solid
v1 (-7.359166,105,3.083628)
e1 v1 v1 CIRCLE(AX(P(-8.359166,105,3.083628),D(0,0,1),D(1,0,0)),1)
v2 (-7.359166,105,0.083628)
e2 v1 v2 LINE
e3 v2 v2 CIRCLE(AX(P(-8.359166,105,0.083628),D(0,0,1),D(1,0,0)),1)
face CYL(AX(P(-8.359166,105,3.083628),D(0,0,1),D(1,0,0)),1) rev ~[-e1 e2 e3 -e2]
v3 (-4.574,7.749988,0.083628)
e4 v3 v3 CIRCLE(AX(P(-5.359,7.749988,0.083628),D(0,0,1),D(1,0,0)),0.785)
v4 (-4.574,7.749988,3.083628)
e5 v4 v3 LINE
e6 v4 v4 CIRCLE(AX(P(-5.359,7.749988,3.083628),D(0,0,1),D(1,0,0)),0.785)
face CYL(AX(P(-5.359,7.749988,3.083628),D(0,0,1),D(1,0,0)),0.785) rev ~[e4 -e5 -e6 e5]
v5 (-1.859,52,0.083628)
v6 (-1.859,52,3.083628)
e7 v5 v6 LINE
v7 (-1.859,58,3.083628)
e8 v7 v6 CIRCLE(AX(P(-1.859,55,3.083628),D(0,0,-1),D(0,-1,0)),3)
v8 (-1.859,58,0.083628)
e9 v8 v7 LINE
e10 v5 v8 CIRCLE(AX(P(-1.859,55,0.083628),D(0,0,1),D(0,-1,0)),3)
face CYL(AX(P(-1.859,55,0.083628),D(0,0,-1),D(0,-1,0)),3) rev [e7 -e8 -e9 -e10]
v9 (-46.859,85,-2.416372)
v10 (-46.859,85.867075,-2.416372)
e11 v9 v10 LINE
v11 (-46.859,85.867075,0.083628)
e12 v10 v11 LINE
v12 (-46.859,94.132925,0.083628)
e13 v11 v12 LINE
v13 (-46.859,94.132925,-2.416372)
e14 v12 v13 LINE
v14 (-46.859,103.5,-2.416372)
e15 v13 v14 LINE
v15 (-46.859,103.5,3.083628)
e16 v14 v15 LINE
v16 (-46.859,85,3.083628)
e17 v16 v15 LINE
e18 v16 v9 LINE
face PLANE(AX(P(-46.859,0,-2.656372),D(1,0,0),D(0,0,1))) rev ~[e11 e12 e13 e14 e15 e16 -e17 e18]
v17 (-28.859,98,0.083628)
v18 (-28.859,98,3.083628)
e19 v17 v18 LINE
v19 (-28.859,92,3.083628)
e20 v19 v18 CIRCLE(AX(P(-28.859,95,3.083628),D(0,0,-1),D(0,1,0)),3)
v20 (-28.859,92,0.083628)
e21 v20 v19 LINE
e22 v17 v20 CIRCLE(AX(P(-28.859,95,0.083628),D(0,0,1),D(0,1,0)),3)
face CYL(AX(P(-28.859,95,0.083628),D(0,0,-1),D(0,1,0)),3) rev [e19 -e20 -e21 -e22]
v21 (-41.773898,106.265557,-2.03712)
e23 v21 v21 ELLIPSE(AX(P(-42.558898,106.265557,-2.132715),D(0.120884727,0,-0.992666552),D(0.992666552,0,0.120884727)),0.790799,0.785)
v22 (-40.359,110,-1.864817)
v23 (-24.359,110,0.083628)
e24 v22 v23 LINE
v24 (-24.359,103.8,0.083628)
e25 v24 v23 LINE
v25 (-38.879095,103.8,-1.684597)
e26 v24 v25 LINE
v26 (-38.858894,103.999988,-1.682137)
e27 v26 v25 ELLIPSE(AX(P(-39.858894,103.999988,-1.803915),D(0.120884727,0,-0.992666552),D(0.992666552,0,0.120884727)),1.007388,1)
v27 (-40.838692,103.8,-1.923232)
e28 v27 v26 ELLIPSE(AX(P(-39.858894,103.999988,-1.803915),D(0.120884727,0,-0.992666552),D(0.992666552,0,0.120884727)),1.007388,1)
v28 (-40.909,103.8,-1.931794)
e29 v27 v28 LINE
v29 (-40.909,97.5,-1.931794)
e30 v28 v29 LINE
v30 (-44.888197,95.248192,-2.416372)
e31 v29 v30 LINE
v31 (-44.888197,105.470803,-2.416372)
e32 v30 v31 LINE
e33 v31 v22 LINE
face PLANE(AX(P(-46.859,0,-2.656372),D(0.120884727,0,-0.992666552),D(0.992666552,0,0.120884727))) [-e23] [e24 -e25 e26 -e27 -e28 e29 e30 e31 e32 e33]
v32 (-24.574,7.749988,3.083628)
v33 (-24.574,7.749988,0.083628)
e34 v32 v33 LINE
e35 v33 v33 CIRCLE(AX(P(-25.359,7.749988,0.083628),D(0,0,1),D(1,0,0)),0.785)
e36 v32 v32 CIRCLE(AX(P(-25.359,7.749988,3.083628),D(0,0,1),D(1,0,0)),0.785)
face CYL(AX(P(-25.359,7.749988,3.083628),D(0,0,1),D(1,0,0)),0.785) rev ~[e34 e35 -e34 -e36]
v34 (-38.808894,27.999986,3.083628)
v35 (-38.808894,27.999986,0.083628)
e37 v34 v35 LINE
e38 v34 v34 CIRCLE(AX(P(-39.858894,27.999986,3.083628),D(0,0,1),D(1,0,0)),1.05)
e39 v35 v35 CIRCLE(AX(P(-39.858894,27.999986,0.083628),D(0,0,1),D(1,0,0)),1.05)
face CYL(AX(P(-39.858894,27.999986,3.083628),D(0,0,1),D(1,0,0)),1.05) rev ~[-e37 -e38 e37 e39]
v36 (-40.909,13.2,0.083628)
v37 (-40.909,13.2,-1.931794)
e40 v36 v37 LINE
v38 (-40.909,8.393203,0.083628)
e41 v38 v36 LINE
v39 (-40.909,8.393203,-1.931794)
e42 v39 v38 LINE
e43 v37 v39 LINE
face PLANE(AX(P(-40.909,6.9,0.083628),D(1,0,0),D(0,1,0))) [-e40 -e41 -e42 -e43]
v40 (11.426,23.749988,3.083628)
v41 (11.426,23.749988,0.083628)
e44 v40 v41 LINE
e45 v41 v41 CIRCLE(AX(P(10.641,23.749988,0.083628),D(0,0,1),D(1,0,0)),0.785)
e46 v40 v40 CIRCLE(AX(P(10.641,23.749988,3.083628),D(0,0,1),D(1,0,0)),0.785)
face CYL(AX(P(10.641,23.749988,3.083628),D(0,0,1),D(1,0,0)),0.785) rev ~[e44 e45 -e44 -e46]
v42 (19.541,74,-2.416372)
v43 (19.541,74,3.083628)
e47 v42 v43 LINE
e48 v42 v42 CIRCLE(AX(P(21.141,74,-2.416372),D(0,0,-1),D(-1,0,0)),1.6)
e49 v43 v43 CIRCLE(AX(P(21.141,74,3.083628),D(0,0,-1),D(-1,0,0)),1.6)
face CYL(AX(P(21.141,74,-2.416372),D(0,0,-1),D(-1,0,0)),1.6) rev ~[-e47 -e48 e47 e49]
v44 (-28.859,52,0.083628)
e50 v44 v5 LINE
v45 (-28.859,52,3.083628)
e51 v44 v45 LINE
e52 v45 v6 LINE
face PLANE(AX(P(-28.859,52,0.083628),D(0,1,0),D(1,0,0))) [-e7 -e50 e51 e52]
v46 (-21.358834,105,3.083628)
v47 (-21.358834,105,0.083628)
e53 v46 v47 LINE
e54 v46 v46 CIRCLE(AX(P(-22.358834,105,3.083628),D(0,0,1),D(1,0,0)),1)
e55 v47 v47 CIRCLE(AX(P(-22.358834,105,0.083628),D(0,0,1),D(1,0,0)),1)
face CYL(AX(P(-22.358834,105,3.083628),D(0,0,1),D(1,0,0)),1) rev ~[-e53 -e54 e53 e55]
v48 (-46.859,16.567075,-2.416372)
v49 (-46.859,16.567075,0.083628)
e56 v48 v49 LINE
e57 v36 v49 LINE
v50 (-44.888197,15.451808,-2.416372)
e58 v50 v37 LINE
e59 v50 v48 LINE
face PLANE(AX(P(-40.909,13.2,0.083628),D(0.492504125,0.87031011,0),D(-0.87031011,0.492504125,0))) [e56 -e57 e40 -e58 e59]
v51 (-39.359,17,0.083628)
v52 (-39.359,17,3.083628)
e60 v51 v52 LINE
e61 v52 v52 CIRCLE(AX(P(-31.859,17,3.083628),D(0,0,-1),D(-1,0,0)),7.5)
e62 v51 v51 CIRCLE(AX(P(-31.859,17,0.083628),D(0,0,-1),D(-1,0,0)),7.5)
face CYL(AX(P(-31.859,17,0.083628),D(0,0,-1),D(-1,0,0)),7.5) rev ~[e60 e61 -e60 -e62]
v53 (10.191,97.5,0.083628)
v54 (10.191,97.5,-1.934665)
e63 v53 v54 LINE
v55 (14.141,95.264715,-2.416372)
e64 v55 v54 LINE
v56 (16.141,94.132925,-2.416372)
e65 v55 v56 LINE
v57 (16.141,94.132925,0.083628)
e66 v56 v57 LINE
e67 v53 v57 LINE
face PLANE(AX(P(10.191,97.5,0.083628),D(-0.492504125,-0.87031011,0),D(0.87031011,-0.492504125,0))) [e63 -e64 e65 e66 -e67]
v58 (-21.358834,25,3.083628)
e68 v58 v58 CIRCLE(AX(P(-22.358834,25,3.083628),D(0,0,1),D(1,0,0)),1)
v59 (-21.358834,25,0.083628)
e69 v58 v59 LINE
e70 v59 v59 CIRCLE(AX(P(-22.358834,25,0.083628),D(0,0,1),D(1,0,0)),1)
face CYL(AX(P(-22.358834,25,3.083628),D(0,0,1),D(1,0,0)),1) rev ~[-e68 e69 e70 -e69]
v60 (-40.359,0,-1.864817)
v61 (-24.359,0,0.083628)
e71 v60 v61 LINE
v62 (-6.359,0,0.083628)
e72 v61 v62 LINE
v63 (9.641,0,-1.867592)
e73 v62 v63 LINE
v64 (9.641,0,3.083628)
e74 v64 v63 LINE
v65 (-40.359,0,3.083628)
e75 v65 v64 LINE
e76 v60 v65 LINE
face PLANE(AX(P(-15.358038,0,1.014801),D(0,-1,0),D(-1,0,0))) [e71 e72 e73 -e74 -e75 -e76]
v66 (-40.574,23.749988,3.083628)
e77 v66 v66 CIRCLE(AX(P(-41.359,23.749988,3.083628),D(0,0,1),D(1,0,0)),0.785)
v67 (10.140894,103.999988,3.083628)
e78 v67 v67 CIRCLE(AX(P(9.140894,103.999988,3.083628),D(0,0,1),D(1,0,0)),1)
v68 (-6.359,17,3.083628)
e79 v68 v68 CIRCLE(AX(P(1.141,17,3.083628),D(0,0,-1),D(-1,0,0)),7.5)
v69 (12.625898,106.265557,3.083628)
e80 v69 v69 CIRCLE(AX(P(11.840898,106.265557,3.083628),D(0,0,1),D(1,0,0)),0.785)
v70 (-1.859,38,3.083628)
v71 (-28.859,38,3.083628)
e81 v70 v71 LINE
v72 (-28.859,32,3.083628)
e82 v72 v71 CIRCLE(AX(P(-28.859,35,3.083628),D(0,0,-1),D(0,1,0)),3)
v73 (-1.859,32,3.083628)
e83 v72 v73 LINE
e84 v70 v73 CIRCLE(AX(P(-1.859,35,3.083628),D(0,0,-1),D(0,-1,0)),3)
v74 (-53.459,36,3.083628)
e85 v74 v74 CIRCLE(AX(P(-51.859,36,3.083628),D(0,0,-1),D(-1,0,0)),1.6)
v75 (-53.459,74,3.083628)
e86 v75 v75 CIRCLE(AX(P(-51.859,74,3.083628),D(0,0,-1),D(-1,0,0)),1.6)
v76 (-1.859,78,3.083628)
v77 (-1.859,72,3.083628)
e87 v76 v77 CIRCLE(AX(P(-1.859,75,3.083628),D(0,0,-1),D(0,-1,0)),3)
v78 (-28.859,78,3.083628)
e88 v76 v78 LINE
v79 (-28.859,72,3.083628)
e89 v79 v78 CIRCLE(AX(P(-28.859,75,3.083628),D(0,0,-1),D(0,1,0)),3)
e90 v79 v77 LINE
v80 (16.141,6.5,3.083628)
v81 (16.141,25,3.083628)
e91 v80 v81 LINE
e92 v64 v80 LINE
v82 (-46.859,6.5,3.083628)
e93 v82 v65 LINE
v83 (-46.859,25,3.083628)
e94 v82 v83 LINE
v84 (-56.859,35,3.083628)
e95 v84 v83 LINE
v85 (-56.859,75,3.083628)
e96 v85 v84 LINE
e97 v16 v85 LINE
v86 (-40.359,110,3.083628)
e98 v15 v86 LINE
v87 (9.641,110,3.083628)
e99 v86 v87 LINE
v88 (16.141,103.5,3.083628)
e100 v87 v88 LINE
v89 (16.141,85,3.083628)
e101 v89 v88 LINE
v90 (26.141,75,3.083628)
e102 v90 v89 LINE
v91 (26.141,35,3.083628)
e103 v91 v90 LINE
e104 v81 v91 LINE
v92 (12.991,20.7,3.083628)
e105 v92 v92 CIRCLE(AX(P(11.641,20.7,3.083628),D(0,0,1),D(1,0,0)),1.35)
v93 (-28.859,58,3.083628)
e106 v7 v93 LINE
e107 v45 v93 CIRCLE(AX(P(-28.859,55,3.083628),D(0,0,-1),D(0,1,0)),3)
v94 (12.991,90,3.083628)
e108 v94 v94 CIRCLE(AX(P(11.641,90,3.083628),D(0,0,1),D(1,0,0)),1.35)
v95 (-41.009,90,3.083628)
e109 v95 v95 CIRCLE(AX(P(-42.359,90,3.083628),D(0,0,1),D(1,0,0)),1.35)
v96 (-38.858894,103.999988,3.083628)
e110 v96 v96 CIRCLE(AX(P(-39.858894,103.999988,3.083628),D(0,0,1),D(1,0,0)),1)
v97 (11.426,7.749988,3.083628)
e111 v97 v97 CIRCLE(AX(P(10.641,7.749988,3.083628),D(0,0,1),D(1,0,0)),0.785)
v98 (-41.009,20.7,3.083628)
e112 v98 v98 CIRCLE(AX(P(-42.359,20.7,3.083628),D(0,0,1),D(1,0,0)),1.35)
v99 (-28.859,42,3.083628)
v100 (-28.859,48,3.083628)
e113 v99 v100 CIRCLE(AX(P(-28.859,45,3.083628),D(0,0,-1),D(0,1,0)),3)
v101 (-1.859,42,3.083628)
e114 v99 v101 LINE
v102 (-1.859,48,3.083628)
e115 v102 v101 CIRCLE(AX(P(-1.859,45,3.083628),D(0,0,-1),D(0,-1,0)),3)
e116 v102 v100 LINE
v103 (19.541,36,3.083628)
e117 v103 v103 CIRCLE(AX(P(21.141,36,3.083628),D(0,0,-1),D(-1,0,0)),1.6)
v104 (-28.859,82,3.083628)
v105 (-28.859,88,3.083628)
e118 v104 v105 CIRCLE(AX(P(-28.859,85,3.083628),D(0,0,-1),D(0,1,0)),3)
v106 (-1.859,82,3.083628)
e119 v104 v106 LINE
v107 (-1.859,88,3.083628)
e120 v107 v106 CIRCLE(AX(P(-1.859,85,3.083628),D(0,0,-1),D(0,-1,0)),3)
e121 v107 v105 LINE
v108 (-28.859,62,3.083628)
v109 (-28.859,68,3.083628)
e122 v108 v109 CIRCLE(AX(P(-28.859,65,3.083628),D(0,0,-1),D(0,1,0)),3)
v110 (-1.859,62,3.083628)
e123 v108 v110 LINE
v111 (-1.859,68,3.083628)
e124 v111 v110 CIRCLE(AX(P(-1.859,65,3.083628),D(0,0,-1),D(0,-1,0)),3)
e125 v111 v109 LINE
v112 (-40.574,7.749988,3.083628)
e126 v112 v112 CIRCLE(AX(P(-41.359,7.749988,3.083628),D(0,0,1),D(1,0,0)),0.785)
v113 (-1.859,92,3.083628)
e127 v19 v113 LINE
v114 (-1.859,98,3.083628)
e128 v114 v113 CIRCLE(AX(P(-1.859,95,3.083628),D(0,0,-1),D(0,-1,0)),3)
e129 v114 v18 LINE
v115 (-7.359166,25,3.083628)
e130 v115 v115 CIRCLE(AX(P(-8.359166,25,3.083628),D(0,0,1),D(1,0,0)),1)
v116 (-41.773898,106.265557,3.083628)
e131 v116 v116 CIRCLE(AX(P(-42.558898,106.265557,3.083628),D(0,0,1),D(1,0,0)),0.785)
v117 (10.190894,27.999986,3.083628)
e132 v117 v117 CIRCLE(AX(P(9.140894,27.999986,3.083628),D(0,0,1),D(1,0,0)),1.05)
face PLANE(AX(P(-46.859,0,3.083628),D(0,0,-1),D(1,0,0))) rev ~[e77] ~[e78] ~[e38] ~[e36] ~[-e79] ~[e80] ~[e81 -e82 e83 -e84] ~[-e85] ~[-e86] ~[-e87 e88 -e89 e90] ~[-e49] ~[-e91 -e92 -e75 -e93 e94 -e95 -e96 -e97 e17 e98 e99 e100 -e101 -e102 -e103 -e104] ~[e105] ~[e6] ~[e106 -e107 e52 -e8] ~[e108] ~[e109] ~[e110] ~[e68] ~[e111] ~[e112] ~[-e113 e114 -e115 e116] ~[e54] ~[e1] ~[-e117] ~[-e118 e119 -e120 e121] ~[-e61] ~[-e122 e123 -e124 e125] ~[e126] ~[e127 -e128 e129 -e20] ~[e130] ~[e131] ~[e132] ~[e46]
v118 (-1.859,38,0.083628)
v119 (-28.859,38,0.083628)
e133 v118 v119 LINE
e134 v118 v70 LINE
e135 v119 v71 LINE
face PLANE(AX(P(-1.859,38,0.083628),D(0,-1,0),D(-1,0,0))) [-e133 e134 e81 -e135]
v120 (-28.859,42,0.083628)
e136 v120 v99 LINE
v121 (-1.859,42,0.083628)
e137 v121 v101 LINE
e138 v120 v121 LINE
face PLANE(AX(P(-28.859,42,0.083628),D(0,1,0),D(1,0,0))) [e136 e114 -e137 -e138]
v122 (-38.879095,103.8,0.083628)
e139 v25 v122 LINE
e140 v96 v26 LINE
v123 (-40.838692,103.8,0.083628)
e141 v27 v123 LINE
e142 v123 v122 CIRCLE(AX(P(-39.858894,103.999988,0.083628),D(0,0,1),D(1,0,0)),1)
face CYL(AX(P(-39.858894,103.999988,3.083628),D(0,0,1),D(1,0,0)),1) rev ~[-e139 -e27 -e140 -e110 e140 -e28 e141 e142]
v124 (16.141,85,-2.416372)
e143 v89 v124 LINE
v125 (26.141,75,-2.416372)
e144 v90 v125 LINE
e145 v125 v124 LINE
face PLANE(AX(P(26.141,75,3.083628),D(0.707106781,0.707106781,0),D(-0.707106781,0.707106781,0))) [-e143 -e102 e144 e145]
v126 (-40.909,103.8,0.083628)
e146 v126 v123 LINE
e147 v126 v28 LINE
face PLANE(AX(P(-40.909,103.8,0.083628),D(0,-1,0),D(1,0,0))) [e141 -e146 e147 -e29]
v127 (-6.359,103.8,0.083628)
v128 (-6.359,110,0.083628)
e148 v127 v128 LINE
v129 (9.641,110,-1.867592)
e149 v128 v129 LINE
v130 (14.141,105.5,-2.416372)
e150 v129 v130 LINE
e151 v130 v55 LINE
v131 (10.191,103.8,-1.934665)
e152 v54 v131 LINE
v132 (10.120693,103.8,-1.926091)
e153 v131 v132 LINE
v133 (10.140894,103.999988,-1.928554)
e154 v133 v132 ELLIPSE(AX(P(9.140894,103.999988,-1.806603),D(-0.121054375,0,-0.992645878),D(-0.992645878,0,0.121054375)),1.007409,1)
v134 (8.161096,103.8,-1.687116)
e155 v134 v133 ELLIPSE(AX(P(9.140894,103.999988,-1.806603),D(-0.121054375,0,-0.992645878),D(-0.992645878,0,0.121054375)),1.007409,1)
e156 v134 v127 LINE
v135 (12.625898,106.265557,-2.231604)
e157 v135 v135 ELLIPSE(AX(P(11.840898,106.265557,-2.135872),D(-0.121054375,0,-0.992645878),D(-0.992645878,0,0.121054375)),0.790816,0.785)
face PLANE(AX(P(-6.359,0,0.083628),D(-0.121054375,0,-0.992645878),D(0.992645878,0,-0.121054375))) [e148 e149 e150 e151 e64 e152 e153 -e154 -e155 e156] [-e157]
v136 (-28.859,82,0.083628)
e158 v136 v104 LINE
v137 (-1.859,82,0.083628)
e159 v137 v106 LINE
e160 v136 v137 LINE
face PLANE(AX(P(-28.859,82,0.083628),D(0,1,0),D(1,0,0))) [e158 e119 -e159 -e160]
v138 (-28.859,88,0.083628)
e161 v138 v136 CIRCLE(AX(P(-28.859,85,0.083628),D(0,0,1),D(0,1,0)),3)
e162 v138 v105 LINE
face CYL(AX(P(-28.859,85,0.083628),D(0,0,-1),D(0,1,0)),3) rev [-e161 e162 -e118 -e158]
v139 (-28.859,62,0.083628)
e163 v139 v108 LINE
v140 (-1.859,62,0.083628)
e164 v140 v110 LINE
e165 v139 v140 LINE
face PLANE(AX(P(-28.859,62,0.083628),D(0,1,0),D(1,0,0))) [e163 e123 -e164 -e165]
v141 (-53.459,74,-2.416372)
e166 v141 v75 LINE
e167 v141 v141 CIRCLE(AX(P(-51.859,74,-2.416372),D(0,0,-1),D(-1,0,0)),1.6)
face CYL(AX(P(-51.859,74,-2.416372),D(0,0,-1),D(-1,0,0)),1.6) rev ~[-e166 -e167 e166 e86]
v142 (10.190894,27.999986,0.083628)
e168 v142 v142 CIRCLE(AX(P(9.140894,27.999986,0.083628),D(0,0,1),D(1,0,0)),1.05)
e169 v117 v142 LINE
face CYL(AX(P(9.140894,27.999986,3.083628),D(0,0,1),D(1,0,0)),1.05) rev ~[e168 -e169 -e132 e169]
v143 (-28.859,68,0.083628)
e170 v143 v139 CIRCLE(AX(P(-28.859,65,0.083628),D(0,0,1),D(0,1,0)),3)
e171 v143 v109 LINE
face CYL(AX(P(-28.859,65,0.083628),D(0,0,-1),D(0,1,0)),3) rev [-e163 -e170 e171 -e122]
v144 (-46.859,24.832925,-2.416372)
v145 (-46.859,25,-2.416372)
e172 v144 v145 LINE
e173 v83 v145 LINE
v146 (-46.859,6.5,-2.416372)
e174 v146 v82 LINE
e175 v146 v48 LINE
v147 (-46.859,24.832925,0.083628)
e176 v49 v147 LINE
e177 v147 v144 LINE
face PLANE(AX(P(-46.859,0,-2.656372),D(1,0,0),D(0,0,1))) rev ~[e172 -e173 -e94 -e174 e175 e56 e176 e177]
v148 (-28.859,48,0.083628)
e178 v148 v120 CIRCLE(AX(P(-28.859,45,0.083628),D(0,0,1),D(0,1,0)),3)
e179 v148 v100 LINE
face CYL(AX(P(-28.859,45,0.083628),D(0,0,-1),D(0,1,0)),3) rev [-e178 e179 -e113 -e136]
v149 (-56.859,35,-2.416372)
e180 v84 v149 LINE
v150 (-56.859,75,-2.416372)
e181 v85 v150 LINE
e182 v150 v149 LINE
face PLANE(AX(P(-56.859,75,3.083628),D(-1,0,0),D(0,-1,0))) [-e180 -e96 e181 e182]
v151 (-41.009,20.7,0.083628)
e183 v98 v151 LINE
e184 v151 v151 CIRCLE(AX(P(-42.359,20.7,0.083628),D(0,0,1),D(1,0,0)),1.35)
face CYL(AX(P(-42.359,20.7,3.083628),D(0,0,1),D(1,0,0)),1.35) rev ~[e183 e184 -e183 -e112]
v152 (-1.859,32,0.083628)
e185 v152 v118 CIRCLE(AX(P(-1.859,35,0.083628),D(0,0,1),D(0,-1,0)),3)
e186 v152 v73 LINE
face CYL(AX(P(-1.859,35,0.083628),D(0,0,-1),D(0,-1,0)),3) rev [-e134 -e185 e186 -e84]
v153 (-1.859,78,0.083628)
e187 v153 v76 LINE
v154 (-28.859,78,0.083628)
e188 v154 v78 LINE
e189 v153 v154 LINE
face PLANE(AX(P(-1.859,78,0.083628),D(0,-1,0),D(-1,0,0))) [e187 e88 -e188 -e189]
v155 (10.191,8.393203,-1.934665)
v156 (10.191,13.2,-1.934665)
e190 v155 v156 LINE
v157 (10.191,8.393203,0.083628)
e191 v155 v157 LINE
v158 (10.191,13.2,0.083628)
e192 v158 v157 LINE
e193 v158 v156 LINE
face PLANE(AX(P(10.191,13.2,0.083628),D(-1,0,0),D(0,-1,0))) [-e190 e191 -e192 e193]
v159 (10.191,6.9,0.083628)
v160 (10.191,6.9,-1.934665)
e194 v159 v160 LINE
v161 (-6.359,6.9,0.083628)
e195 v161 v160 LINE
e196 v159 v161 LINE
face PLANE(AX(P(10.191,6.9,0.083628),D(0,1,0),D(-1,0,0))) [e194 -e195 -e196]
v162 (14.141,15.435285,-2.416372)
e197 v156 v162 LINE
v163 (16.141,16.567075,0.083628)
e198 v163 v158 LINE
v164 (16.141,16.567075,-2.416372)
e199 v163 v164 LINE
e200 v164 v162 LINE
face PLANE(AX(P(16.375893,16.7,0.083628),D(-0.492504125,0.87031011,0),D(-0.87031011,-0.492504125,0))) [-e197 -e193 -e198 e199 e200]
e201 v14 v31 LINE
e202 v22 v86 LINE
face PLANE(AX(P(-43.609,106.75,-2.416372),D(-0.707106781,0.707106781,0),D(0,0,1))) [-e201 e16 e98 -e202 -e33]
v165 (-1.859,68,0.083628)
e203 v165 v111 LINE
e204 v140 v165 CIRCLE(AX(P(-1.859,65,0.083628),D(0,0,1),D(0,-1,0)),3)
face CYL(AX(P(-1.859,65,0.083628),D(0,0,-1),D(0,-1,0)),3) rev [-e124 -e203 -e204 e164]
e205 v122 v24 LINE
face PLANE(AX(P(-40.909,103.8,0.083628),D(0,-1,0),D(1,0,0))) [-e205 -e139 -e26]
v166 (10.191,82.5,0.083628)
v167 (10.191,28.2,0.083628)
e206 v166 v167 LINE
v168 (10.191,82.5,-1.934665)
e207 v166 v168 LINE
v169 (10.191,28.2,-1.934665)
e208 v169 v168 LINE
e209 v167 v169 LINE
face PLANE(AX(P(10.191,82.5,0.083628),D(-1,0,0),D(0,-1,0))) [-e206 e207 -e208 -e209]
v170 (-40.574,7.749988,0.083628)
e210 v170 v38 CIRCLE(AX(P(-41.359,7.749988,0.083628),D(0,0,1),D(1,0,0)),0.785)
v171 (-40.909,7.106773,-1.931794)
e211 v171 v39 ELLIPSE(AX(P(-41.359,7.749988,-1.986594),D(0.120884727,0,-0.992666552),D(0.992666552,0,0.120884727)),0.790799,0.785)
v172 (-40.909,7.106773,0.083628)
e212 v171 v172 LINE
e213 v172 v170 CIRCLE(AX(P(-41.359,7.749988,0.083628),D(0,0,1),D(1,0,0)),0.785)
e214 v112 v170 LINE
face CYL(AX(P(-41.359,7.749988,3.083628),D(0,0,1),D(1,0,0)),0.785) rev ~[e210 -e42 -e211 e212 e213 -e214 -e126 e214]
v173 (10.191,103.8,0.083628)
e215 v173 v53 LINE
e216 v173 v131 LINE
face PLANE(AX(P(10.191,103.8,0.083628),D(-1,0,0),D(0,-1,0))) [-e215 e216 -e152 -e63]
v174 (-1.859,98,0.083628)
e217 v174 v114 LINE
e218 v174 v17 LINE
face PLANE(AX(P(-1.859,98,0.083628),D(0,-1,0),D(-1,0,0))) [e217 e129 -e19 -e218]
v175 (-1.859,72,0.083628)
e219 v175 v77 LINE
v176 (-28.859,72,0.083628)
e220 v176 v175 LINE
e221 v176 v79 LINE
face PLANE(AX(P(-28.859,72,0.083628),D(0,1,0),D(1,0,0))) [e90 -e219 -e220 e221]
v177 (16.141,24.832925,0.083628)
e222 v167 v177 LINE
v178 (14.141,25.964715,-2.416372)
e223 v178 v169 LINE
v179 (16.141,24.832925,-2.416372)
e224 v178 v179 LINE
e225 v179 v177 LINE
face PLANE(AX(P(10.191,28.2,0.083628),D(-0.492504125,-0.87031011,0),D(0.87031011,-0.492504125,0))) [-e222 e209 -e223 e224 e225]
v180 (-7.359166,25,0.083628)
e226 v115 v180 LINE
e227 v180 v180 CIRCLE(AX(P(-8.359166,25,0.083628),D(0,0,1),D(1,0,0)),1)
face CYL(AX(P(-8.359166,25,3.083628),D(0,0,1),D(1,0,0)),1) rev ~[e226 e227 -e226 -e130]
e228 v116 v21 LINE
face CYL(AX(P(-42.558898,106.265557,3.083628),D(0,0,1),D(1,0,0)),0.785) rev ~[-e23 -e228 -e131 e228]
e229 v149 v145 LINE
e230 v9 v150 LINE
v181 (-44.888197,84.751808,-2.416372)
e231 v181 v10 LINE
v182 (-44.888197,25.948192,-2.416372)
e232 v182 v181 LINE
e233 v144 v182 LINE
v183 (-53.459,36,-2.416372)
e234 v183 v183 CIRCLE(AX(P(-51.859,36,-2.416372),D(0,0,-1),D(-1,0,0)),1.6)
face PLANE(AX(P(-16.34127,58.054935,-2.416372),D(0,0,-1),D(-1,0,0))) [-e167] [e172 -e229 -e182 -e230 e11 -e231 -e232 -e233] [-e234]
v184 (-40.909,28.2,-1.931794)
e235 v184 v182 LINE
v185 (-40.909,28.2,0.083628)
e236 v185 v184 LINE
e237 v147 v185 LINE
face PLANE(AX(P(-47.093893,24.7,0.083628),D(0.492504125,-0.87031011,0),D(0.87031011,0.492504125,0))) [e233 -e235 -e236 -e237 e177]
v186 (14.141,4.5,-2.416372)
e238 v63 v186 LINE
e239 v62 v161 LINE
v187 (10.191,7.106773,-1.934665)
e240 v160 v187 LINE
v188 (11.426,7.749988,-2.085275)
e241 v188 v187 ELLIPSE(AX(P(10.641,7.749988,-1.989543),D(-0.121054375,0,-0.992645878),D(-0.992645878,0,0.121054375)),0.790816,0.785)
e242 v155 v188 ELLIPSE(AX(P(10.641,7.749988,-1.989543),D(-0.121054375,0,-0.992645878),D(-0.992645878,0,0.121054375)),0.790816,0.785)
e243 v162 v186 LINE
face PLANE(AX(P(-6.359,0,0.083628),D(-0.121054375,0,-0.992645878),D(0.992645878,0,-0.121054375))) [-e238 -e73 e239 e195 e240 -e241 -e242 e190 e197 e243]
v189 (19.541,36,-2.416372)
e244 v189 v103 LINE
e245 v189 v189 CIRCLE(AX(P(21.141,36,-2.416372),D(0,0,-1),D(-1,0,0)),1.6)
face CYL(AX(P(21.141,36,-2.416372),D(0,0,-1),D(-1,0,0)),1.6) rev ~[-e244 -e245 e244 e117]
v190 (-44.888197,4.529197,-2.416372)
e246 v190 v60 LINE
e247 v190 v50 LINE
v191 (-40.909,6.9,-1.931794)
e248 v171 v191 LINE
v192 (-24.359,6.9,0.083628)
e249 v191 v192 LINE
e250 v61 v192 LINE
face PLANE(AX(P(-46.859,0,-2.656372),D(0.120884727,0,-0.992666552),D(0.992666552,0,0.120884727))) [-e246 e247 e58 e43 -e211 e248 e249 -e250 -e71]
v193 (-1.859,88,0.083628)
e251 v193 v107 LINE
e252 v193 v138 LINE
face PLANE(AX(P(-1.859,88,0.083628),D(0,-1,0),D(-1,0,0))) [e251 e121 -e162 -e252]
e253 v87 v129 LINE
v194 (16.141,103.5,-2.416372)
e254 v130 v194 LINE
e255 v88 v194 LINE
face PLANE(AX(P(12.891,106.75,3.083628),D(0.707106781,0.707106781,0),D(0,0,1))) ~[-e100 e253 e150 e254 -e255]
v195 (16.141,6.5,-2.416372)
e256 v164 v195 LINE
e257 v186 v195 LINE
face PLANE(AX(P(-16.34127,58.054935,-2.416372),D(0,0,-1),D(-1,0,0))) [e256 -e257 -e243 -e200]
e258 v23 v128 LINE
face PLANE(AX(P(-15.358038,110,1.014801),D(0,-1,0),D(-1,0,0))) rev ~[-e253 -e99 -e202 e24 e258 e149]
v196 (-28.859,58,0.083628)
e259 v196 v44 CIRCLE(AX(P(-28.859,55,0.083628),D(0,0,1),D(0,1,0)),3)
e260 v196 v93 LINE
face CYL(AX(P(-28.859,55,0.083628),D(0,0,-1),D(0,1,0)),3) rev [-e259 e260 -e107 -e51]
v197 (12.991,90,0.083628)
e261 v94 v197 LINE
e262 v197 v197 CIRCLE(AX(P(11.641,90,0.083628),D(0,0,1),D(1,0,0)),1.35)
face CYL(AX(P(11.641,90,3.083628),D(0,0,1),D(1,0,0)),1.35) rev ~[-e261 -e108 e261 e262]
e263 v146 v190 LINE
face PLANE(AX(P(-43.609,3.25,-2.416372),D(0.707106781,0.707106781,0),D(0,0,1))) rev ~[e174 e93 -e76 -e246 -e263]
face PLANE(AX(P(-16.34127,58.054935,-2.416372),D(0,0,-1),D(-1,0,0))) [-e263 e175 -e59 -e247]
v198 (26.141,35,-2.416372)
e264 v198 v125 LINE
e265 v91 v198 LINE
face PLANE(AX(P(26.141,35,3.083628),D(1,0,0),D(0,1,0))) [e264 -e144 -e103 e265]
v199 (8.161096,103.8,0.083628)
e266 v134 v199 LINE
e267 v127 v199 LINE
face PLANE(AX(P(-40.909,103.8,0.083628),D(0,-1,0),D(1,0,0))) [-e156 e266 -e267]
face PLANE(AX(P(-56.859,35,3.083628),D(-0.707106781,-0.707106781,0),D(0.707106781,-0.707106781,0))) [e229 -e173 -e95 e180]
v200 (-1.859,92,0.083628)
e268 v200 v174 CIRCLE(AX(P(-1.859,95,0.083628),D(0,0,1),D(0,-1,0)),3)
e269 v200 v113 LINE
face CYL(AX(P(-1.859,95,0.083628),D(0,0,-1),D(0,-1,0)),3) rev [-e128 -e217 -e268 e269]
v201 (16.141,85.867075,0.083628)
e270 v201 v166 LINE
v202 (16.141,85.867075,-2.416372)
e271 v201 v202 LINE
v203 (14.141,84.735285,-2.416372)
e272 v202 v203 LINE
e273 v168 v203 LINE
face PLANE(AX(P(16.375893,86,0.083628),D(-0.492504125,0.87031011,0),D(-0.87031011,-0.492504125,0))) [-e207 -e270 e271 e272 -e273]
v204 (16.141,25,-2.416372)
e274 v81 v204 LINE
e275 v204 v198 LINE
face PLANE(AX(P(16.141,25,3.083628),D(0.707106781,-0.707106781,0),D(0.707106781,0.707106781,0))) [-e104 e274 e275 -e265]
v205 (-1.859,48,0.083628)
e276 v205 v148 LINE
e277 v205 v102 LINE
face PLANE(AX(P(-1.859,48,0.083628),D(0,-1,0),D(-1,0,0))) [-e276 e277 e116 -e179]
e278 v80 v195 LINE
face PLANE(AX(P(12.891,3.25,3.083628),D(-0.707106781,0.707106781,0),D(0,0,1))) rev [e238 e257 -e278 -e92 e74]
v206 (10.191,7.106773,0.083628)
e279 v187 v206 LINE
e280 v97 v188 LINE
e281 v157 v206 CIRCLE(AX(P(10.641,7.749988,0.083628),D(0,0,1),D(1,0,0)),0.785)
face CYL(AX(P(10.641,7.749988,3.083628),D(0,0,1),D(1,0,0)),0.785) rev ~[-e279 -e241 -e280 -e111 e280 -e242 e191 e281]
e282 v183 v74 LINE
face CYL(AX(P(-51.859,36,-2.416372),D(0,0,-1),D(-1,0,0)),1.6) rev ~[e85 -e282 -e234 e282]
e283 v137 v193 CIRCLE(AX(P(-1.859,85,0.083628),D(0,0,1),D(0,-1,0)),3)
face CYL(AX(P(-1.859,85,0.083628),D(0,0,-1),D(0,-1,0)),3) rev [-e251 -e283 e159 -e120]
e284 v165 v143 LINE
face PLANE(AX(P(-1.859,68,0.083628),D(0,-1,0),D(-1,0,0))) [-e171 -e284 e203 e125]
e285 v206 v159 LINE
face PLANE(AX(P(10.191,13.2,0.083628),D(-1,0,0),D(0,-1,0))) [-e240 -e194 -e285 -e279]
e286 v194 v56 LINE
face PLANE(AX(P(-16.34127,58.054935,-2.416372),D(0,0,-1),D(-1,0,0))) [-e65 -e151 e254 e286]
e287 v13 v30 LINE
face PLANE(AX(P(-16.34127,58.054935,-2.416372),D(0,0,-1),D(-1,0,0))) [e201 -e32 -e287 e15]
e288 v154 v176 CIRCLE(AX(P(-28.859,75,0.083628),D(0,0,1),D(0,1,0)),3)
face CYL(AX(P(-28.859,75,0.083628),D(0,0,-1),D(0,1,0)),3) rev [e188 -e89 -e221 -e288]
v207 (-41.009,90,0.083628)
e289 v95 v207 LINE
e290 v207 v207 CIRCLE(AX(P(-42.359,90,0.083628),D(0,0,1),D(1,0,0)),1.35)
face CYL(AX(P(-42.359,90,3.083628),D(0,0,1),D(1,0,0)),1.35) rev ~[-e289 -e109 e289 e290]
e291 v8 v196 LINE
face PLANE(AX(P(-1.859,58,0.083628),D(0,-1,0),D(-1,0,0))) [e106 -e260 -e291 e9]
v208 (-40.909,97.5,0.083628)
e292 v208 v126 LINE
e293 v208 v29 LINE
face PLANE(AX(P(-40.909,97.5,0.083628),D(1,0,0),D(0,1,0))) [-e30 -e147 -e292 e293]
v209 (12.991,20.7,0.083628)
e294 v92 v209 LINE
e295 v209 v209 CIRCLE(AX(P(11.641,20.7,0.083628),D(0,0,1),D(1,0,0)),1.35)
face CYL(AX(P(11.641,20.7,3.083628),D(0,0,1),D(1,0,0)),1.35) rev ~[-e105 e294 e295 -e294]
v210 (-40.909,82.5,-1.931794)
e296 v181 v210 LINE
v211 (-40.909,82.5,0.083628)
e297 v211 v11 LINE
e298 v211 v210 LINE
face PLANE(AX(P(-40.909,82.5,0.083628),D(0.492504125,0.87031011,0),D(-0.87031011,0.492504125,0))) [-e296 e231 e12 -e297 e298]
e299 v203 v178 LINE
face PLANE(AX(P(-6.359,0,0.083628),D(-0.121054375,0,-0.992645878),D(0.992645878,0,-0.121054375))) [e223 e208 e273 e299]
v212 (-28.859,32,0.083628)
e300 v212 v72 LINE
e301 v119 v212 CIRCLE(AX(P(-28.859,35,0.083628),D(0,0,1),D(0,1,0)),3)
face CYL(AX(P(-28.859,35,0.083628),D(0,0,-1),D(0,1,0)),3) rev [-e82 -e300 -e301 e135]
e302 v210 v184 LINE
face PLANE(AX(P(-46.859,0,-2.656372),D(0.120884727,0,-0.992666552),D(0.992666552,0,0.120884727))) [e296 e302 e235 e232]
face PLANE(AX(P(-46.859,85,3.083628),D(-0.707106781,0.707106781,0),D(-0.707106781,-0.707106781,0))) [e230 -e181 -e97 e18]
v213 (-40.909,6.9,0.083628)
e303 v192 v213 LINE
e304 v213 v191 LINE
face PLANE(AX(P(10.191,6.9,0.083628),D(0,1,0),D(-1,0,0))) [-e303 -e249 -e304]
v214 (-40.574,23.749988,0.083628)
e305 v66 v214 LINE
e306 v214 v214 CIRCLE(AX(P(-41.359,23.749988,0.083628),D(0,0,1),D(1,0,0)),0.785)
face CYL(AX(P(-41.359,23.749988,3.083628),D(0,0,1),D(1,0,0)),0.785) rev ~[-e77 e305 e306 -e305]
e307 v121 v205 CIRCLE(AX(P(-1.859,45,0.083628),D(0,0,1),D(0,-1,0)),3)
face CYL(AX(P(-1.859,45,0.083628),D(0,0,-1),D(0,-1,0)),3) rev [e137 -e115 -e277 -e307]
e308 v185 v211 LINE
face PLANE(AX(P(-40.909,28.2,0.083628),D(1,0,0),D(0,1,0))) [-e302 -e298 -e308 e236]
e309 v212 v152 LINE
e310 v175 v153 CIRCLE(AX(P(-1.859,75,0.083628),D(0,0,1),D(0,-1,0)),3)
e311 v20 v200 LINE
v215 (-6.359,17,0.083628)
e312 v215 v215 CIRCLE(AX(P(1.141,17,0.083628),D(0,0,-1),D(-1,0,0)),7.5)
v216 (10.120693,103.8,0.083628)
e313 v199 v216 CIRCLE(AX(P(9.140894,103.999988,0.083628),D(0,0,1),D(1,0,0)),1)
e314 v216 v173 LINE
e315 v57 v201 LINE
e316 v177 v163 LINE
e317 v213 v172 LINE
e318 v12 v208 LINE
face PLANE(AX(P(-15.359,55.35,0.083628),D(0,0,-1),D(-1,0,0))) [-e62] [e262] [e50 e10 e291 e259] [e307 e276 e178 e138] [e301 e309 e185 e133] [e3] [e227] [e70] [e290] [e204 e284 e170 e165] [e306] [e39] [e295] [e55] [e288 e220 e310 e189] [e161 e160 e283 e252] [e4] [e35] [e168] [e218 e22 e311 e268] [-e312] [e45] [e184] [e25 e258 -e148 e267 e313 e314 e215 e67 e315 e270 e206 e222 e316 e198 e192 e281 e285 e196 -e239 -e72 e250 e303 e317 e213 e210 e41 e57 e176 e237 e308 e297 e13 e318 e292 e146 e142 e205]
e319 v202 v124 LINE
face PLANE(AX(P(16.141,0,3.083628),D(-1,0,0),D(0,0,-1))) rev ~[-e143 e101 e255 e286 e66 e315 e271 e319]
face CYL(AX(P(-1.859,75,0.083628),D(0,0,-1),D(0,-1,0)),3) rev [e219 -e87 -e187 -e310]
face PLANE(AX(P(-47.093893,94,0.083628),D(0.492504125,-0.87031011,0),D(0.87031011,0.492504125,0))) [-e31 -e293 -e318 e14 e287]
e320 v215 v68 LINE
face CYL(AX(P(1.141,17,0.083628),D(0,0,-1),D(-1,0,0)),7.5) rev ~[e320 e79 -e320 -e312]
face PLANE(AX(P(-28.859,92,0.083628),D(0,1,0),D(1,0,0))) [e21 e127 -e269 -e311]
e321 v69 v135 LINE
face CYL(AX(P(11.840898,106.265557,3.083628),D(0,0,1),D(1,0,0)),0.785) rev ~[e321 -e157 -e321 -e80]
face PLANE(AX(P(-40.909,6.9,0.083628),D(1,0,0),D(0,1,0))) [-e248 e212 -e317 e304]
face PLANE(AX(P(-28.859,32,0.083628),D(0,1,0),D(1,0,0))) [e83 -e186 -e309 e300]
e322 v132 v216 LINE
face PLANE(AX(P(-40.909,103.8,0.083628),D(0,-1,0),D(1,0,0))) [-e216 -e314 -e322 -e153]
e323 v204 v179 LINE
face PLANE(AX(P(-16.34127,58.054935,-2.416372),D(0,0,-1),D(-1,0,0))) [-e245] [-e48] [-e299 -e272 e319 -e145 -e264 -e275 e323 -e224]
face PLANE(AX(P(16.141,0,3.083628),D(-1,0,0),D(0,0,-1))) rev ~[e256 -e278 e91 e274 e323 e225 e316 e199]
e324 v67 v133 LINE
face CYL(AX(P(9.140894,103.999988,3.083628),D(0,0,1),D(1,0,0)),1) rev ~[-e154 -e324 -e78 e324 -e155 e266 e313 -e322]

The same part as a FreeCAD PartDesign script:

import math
import FreeCAD as App
import Part
import Sketcher

V = App.Vector


def edges_at(feature, points):
    """Names of the edges that pass closest to the given points."""
    edges = feature.Shape.Edges
    near = lambda p: min(range(len(edges)), key=lambda i: edges[i].distToShape(Part.Vertex(*p))[0])
    return sorted({f"Edge{near(p) + 1}" for p in points})


def add_polygon(sketch, points):
    """Adds a closed chain of lines whose ends are joined by coincident constraints."""
    first, n = sketch.GeometryCount, len(points)
    for a, b in zip(points, points[1:] + points[:1]):
        sketch.addGeometry(Part.LineSegment(App.Vector(*a, 0), App.Vector(*b, 0)), False)
    for i in range(n):
        sketch.addConstraint(Sketcher.Constraint("Coincident", first + i, 2, first + (i + 1) % n, 1))

doc = App.newDocument("Part")
body = doc.addObject("PartDesign::Body", "Body")

# Sketch on XZ plane
sketch1 = body.newObject("Sketcher::SketchObject", "Sketch")
sketch1.AttachmentSupport = (doc.getObject("XZ_Plane"), [""])
sketch1.MapMode = "FlatFace"
add_polygon(sketch1, [(-47, -3), (-47, 3), (16, 3), (16, -3), (-6, 0), (-24, 0)])  # lines 0-5
sketch1.addConstraint([
    Sketcher.Constraint("Vertical", 0),
    Sketcher.Constraint("Horizontal", 1),
    Sketcher.Constraint("Vertical", 2),
    Sketcher.Constraint("Horizontal", 4),
    Sketcher.Constraint("DistanceX", 1, 1, 1, 2, 63.0),
    Sketcher.Constraint("DistanceX", 4, 2, 4, 1, 18.0),
    Sketcher.Constraint("DistanceY", 3, 2, 1, 2, 3.0),
    Sketcher.Constraint("DistanceY", 0, 1, 0, 2, 5.74),
    Sketcher.Constraint("DistanceX", 3, 2, 2, 2, 22.5),
    Sketcher.Constraint("DistanceX", 0, 2, -1, 1, 46.859),
    Sketcher.Constraint("DistanceY", 2, 2, 2, 1, 5.743902),
    Sketcher.Constraint("DistanceY", -1, 1, 0, 2, 3.083628),
])
pad1 = body.newObject("PartDesign::Pad", "Pad")
pad1.Profile = sketch1
pad1.Length = 110
pad1.Reversed = True

# Sketch on XY plane
sketch2 = body.newObject("Sketcher::SketchObject", "Sketch001")
sketch2.AttachmentSupport = (doc.getObject("XY_Plane"), [""])
sketch2.MapMode = "FlatFace"
sketch2.AttachmentOffset = App.Placement(V(0, 0, 3.083628), App.Rotation())
sketch2.addGeometry([
    Part.Circle(V(11.6, 90, 0), V(0, 0, 1), 1.4),
    Part.Circle(V(11.6, 20.7, 0), V(0, 0, 1), 1.4),
    Part.Circle(V(-42.4, 20.7, 0), V(0, 0, 1), 1.4),
    Part.Circle(V(-42.4, 90, 0), V(0, 0, 1), 1.4),
], False)
sketch2.addConstraint([
    Sketcher.Constraint("Equal", 0, 1),
    Sketcher.Constraint("Equal", 1, 2),
    Sketcher.Constraint("Equal", 2, 3),
    Sketcher.Constraint("Horizontal", 1, 3, 2, 3),
    Sketcher.Constraint("Horizontal", 0, 3, 3, 3),
    Sketcher.Constraint("Vertical", 0, 3, 1, 3),
    Sketcher.Constraint("Vertical", 2, 3, 3, 3),
    Sketcher.Constraint("Diameter", 0, 2.7),
    Sketcher.Constraint("DistanceY", -1, 1, 0, 3, 90.0),
    Sketcher.Constraint("DistanceX", 2, 3, 1, 3, 54.0),
    Sketcher.Constraint("DistanceY", -1, 1, 1, 3, 20.7),
    Sketcher.Constraint("DistanceX", -1, 1, 0, 3, 11.641),
])
pocket1 = body.newObject("PartDesign::Pocket", "Pocket")
pocket1.Profile = sketch2
pocket1.Length = 110

# Sketch on XY plane
sketch3 = body.newObject("Sketcher::SketchObject", "Sketch002")
sketch3.AttachmentSupport = (doc.getObject("XY_Plane"), [""])
sketch3.MapMode = "FlatFace"
sketch3.AttachmentOffset = App.Placement(V(0, 0, 0.083628), App.Rotation())
add_polygon(sketch3, [(-41, 7), (-41, 13), (-47, 17), (-47, 25), (-41, 28), (-41, 82), (-47, 86), (-47, 94), (-41, 98), (-41, 104), (10, 104), (10, 98), (16, 94), (16, 86), (10, 82), (10, 28), (16, 25), (16, 17), (10, 13), (10, 7)])  # lines 0-19
sketch3.addConstraint([
    Sketcher.Constraint("Vertical", 0),
    Sketcher.Constraint("Vertical", 2),
    Sketcher.Constraint("Vertical", 4),
    Sketcher.Constraint("Vertical", 6),
    Sketcher.Constraint("Vertical", 8),
    Sketcher.Constraint("Horizontal", 9),
    Sketcher.Constraint("Vertical", 10),
    Sketcher.Constraint("Vertical", 12),
    Sketcher.Constraint("Vertical", 14),
    Sketcher.Constraint("Vertical", 16),
    Sketcher.Constraint("Vertical", 18),
    Sketcher.Constraint("Horizontal", 19),
    Sketcher.Constraint("Parallel", 1, 5),
    Sketcher.Constraint("Parallel", 3, 7),
    Sketcher.Constraint("Parallel", 5, 11),
    Sketcher.Constraint("Parallel", 7, 13),
    Sketcher.Constraint("Parallel", 11, 15),
    Sketcher.Constraint("Parallel", 13, 17),
    Sketcher.Constraint("Horizontal", 7, 2, 10, 2),
    Sketcher.Constraint("Horizontal", 6, 2, 11, 2),
    Sketcher.Constraint("Horizontal", 5, 2, 12, 2),
    Sketcher.Constraint("Horizontal", 4, 2, 13, 2),
    Sketcher.Constraint("Horizontal", 3, 2, 14, 2),
    Sketcher.Constraint("Horizontal", 2, 2, 15, 2),
    Sketcher.Constraint("Horizontal", 1, 2, 16, 2),
    Sketcher.Constraint("Horizontal", 0, 2, 17, 2),
    Sketcher.Constraint("Vertical", 0, 2, 3, 2),
    Sketcher.Constraint("Vertical", 2, 2, 5, 2),
    Sketcher.Constraint("Vertical", 4, 2, 7, 2),
    Sketcher.Constraint("Vertical", 10, 2, 13, 2),
    Sketcher.Constraint("Equal", 2, 6),
    Sketcher.Constraint("Equal", 0, 8),
    Sketcher.Constraint("DistanceY", 2, 1, 2, 2, 8.0),
    Sketcher.Constraint("DistanceX", 9, 1, 9, 2, 51.1),
    Sketcher.Constraint("DistanceY", 0, 1, 0, 2, 6.3),
    Sketcher.Constraint("DistanceY", 4, 1, 4, 2, 54.3),
    Sketcher.Constraint("DistanceY", -1, 1, 5, 2, 86.0),
    Sketcher.Constraint("DistanceY", 0, 2, 3, 2, 15.0),
    Sketcher.Constraint("DistanceX", 0, 2, -1, 1, 40.909),
    Sketcher.Constraint("Distance", 1, 7.106539),
])
pocket2 = body.newObject("PartDesign::Pocket", "Pocket001")
pocket2.Profile = sketch3
pocket2.Length = 65

# Sketch on XY plane
sketch4 = body.newObject("Sketcher::SketchObject", "Sketch003")
sketch4.AttachmentSupport = (doc.getObject("XY_Plane"), [""])
sketch4.MapMode = "FlatFace"
sketch4.AttachmentOffset = App.Placement(V(0, 0, 3.083628), App.Rotation())
sketch4.addGeometry([
    Part.Circle(V(-42.6, 106.3, 0), V(0, 0, 1), 0.8),  # 0
    Part.Circle(V(-39.9, 104, 0), V(0, 0, 1), 1),  # 1
    Part.Circle(V(-22.4, 105, 0), V(0, 0, 1), 1),  # 2
    Part.Circle(V(-22.4, 25, 0), V(0, 0, 1), 1),  # 3
    Part.Circle(V(-39.9, 28, 0), V(0, 0, 1), 1.1),  # 4
    Part.Circle(V(-41.4, 23.7, 0), V(0, 0, 1), 0.8),  # 5
    Part.Circle(V(-41.4, 7.7, 0), V(0, 0, 1), 0.8),  # 6
    Part.Circle(V(-25.4, 7.7, 0), V(0, 0, 1), 0.8),  # 7
    Part.Circle(V(-5.4, 7.7, 0), V(0, 0, 1), 0.8),  # 8
    Part.Circle(V(10.6, 7.7, 0), V(0, 0, 1), 0.8),  # 9
    Part.Circle(V(10.6, 23.7, 0), V(0, 0, 1), 0.8),  # 10
    Part.Circle(V(9.1, 28, 0), V(0, 0, 1), 1.1),  # 11
    Part.Circle(V(-8.4, 25, 0), V(0, 0, 1), 1),  # 12
    Part.Circle(V(-8.4, 105, 0), V(0, 0, 1), 1),  # 13
    Part.Circle(V(9.1, 104, 0), V(0, 0, 1), 1),  # 14
    Part.Circle(V(11.8, 106.3, 0), V(0, 0, 1), 0.8),  # 15
], False)
sketch4.addConstraint([
    Sketcher.Constraint("Equal", 1, 2),
    Sketcher.Constraint("Equal", 2, 3),
    Sketcher.Constraint("Equal", 0, 5),
    Sketcher.Constraint("Equal", 5, 6),
    Sketcher.Constraint("Equal", 6, 7),
    Sketcher.Constraint("Equal", 7, 8),
    Sketcher.Constraint("Equal", 8, 9),
    Sketcher.Constraint("Equal", 9, 10),
    Sketcher.Constraint("Equal", 4, 11),
    Sketcher.Constraint("Equal", 3, 12),
    Sketcher.Constraint("Equal", 12, 13),
    Sketcher.Constraint("Equal", 13, 14),
    Sketcher.Constraint("Equal", 10, 15),
    Sketcher.Constraint("Horizontal", 6, 3, 7, 3),
    Sketcher.Constraint("Horizontal", 7, 3, 8, 3),
    Sketcher.Constraint("Horizontal", 8, 3, 9, 3),
    Sketcher.Constraint("Horizontal", 5, 3, 10, 3),
    Sketcher.Constraint("Horizontal", 4, 3, 11, 3),
    Sketcher.Constraint("Horizontal", 3, 3, 12, 3),
    Sketcher.Constraint("Horizontal", 2, 3, 13, 3),
    Sketcher.Constraint("Horizontal", 1, 3, 14, 3),
    Sketcher.Constraint("Horizontal", 0, 3, 15, 3),
    Sketcher.Constraint("Vertical", 2, 3, 3, 3),
    Sketcher.Constraint("Vertical", 1, 3, 4, 3),
    Sketcher.Constraint("Vertical", 5, 3, 6, 3),
    Sketcher.Constraint("Vertical", 9, 3, 10, 3),
    Sketcher.Constraint("Vertical", 12, 3, 13, 3),
    Sketcher.Constraint("Vertical", 11, 3, 14, 3),
    Sketcher.Constraint("Diameter", 1, 2.0),
    Sketcher.Constraint("Diameter", 4, 2.1),
    Sketcher.Constraint("Diameter", 0, 1.57),
    Sketcher.Constraint("DistanceY", -1, 1, 2, 3, 105.0),
    Sketcher.Constraint("DistanceY", -1, 1, 3, 3, 25.0),
    Sketcher.Constraint("DistanceY", 6, 3, 5, 3, 16.0),
    Sketcher.Constraint("DistanceX", 6, 3, 7, 3, 16.0),
    Sketcher.Constraint("DistanceX", 7, 3, 8, 3, 20.0),
    Sketcher.Constraint("DistanceX", 8, 3, 9, 3, 16.0),
    Sketcher.Constraint("DistanceY", 5, 3, 4, 3, 4.249998),
    Sketcher.Constraint("DistanceY", 5, 3, 1, 3, 80.25),
    Sketcher.Constraint("DistanceX", 5, 3, -1, 1, 41.359),
    Sketcher.Constraint("DistanceX", -1, 1, 15, 3, 11.840898),
    Sketcher.Constraint("DistanceX", 0, 3, 5, 3, 1.199898),
    Sketcher.Constraint("DistanceY", -1, 1, 1, 3, 103.999988),
    Sketcher.Constraint("DistanceY", 1, 3, 0, 3, 2.265569),
    Sketcher.Constraint("DistanceX", 1, 3, 2, 3, 17.50006),
    Sketcher.Constraint("DistanceX", 3, 3, 11, 3, 31.499728),
    Sketcher.Constraint("DistanceX", 12, 3, 11, 3, 17.50006),
    Sketcher.Constraint("DistanceX", 0, 3, 13, 3, 34.199732),
])
pocket3 = body.newObject("PartDesign::Pocket", "Pocket002")
pocket3.Profile = sketch4
pocket3.Length = 10

# Sketch on XY plane
sketch5 = body.newObject("Sketcher::SketchObject", "Sketch004")
sketch5.AttachmentSupport = (doc.getObject("XY_Plane"), [""])
sketch5.MapMode = "FlatFace"
sketch5.AttachmentOffset = App.Placement(V(0, 0, -2.416372), App.Rotation())
add_polygon(sketch5, [(19, 138), (19, -22), (-52, -22), (-52, 138)])  # lines 0-3
sketch5.addConstraint([
    Sketcher.Constraint("Vertical", 0),
    Sketcher.Constraint("Horizontal", 1),
    Sketcher.Constraint("Vertical", 2),
    Sketcher.Constraint("Horizontal", 3),
    Sketcher.Constraint("DistanceX", 1, 2, 1, 1, 70.969328),
    Sketcher.Constraint("DistanceY", 0, 2, 0, 1, 159.698845),
    Sketcher.Constraint("DistanceX", -1, 1, 0, 2, 19.143394),
    Sketcher.Constraint("DistanceY", 0, 2, -1, 1, 21.794487),
])
pocket4 = body.newObject("PartDesign::Pocket", "Pocket003")
pocket4.Profile = sketch5
pocket4.Length = 10

# Sketch on XY plane
sketch6 = body.newObject("Sketcher::SketchObject", "Sketch005")
sketch6.AttachmentSupport = (doc.getObject("XY_Plane"), [""])
sketch6.MapMode = "FlatFace"
sketch6.AttachmentOffset = App.Placement(V(0, 0, 3.083628), App.Rotation())
add_polygon(sketch6, [(-47, 85), (-57, 75), (-57, 35), (-47, 25)])  # lines 0-3
add_polygon(sketch6, [(16, 85), (16, 25), (26, 35), (26, 75)])  # lines 4-7
sketch6.addConstraint([
    Sketcher.Constraint("Vertical", 1),
    Sketcher.Constraint("Vertical", 3),
    Sketcher.Constraint("Vertical", 4),
    Sketcher.Constraint("Vertical", 6),
    Sketcher.Constraint("Perpendicular", 0, 2),
    Sketcher.Constraint("Perpendicular", 2, 5),
    Sketcher.Constraint("Perpendicular", 5, 7),
    Sketcher.Constraint("Horizontal", 2, 2, 4, 2),
    Sketcher.Constraint("Horizontal", 1, 2, 5, 2),
    Sketcher.Constraint("Horizontal", 0, 2, 6, 2),
    Sketcher.Constraint("Horizontal", 3, 2, 7, 2),
    Sketcher.Constraint("DistanceY", 1, 2, 1, 1, 40.0),
    Sketcher.Constraint("DistanceY", 3, 1, 3, 2, 60.0),
    Sketcher.Constraint("DistanceY", -1, 1, 0, 2, 75.0),
    Sketcher.Constraint("DistanceX", 2, 2, 4, 2, 63.0),
    Sketcher.Constraint("DistanceX", 0, 2, -1, 1, 56.859),
])
pad2 = body.newObject("PartDesign::Pad", "Pad001")
pad2.Profile = sketch6
pad2.Length = 5.5
pad2.Reversed = True

# Sketch on XY plane
sketch7 = body.newObject("Sketcher::SketchObject", "Sketch006")
sketch7.AttachmentSupport = (doc.getObject("XY_Plane"), [""])
sketch7.MapMode = "FlatFace"
sketch7.AttachmentOffset = App.Placement(V(0, 0, -2.416372), App.Rotation())
sketch7.addGeometry([
    Part.Circle(V(21.1, 74, 0), V(0, 0, 1), 1.6),
    Part.Circle(V(21.1, 36, 0), V(0, 0, 1), 1.6),
    Part.Circle(V(-51.9, 74, 0), V(0, 0, 1), 1.6),
    Part.Circle(V(-51.9, 36, 0), V(0, 0, 1), 1.6),
], False)
sketch7.addConstraint([
    Sketcher.Constraint("Equal", 0, 1),
    Sketcher.Constraint("Equal", 1, 2),
    Sketcher.Constraint("Equal", 2, 3),
    Sketcher.Constraint("Horizontal", 0, 3, 2, 3),
    Sketcher.Constraint("Horizontal", 1, 3, 3, 3),
    Sketcher.Constraint("Vertical", 0, 3, 1, 3),
    Sketcher.Constraint("Vertical", 2, 3, 3, 3),
    Sketcher.Constraint("Diameter", 0, 3.2),
    Sketcher.Constraint("DistanceY", -1, 1, 0, 3, 74.0),
    Sketcher.Constraint("DistanceY", -1, 1, 1, 3, 36.0),
    Sketcher.Constraint("DistanceX", 2, 3, 0, 3, 73.0),
    Sketcher.Constraint("DistanceX", -1, 1, 0, 3, 21.141),
])
pocket5 = body.newObject("PartDesign::Pocket", "Pocket004")
pocket5.Profile = sketch7
pocket5.Length = 20
pocket5.Reversed = True
doc.recompute()

chamfer = body.newObject("PartDesign::Chamfer", "Chamfer")
chamfer.Base = (pocket5, edges_at(pocket5, [
    (16.141, 110, 0.334),
    (-46.859, 110, 0.334),
    (16.141, 0, 0.334),
    (-46.859, 0, 0.334),
]))
chamfer.Size = 6.5

# Sketch on XY plane
sketch8 = body.newObject("Sketcher::SketchObject", "Sketch007")
sketch8.AttachmentSupport = (doc.getObject("XY_Plane"), [""])
sketch8.MapMode = "FlatFace"
sketch8.AttachmentOffset = App.Placement(V(0, 0, 0.083628), App.Rotation())
sketch8.addGeometry([
    Part.Circle(V(-31.9, 17, 0), V(0, 0, 1), 7.5),  # 0
    Part.Circle(V(1.1, 17, 0), V(0, 0, 1), 7.5),  # 1
    Part.LineSegment(V(-1.9, 32, 0), V(-28.9, 32, 0)),  # 2
    Part.ArcOfCircle(Part.Circle(V(-28.9, 35, 0), V(0, 0, 1), 3), math.radians(90), math.radians(270)),  # 3
    Part.LineSegment(V(-28.9, 38, 0), V(-1.9, 38, 0)),  # 4
    Part.ArcOfCircle(Part.Circle(V(-1.9, 35, 0), V(0, 0, 1), 3), math.radians(-90), math.radians(90)),  # 5
    Part.LineSegment(V(-1.9, 42, 0), V(-28.9, 42, 0)),  # 6
    Part.ArcOfCircle(Part.Circle(V(-28.9, 45, 0), V(0, 0, 1), 3), math.radians(90), math.radians(270)),  # 7
    Part.LineSegment(V(-28.9, 48, 0), V(-1.9, 48, 0)),  # 8
    Part.ArcOfCircle(Part.Circle(V(-1.9, 45, 0), V(0, 0, 1), 3), math.radians(-90), math.radians(90)),  # 9
    Part.LineSegment(V(-1.9, 52, 0), V(-28.9, 52, 0)),  # 10
    Part.ArcOfCircle(Part.Circle(V(-28.9, 55, 0), V(0, 0, 1), 3), math.radians(90), math.radians(270)),  # 11
    Part.LineSegment(V(-28.9, 58, 0), V(-1.9, 58, 0)),  # 12
    Part.ArcOfCircle(Part.Circle(V(-1.9, 55, 0), V(0, 0, 1), 3), math.radians(-90), math.radians(90)),  # 13
    Part.LineSegment(V(-1.9, 62, 0), V(-28.9, 62, 0)),  # 14
    Part.ArcOfCircle(Part.Circle(V(-28.9, 65, 0), V(0, 0, 1), 3), math.radians(90), math.radians(270)),  # 15
    Part.LineSegment(V(-28.9, 68, 0), V(-1.9, 68, 0)),  # 16
    Part.ArcOfCircle(Part.Circle(V(-1.9, 65, 0), V(0, 0, 1), 3), math.radians(-90), math.radians(90)),  # 17
    Part.LineSegment(V(-1.9, 72, 0), V(-28.9, 72, 0)),  # 18
    Part.ArcOfCircle(Part.Circle(V(-28.9, 75, 0), V(0, 0, 1), 3), math.radians(90), math.radians(270)),  # 19
    Part.LineSegment(V(-28.9, 78, 0), V(-1.9, 78, 0)),  # 20
    Part.ArcOfCircle(Part.Circle(V(-1.9, 75, 0), V(0, 0, 1), 3), math.radians(-90), math.radians(90)),  # 21
    Part.LineSegment(V(-1.9, 82, 0), V(-28.9, 82, 0)),  # 22
    Part.ArcOfCircle(Part.Circle(V(-28.9, 85, 0), V(0, 0, 1), 3), math.radians(90), math.radians(270)),  # 23
    Part.LineSegment(V(-28.9, 88, 0), V(-1.9, 88, 0)),  # 24
    Part.ArcOfCircle(Part.Circle(V(-1.9, 85, 0), V(0, 0, 1), 3), math.radians(-90), math.radians(90)),  # 25
    Part.LineSegment(V(-1.9, 92, 0), V(-28.9, 92, 0)),  # 26
    Part.ArcOfCircle(Part.Circle(V(-28.9, 95, 0), V(0, 0, 1), 3), math.radians(90), math.radians(270)),  # 27
    Part.LineSegment(V(-28.9, 98, 0), V(-1.9, 98, 0)),  # 28
    Part.ArcOfCircle(Part.Circle(V(-1.9, 95, 0), V(0, 0, 1), 3), math.radians(-90), math.radians(90)),  # 29
], False)
sketch8.addConstraint([
    Sketcher.Constraint("Tangent", 2, 2, 3, 2),
    Sketcher.Constraint("Tangent", 3, 1, 4, 1),
    Sketcher.Constraint("Tangent", 4, 2, 5, 2),
    Sketcher.Constraint("Tangent", 5, 1, 2, 1),
    Sketcher.Constraint("Tangent", 6, 2, 7, 2),
    Sketcher.Constraint("Tangent", 7, 1, 8, 1),
    Sketcher.Constraint("Tangent", 8, 2, 9, 2),
    Sketcher.Constraint("Tangent", 9, 1, 6, 1),
    Sketcher.Constraint("Tangent", 10, 2, 11, 2),
    Sketcher.Constraint("Tangent", 11, 1, 12, 1),
    Sketcher.Constraint("Tangent", 12, 2, 13, 2),
    Sketcher.Constraint("Tangent", 13, 1, 10, 1),
    Sketcher.Constraint("Tangent", 14, 2, 15, 2),
    Sketcher.Constraint("Tangent", 15, 1, 16, 1),
    Sketcher.Constraint("Tangent", 16, 2, 17, 2),
    Sketcher.Constraint("Tangent", 17, 1, 14, 1),
    Sketcher.Constraint("Tangent", 18, 2, 19, 2),
    Sketcher.Constraint("Tangent", 19, 1, 20, 1),
    Sketcher.Constraint("Tangent", 20, 2, 21, 2),
    Sketcher.Constraint("Tangent", 21, 1, 18, 1),
    Sketcher.Constraint("Tangent", 22, 2, 23, 2),
    Sketcher.Constraint("Tangent", 23, 1, 24, 1),
    Sketcher.Constraint("Tangent", 24, 2, 25, 2),
    Sketcher.Constraint("Tangent", 25, 1, 22, 1),
    Sketcher.Constraint("Tangent", 26, 2, 27, 2),
    Sketcher.Constraint("Tangent", 27, 1, 28, 1),
    Sketcher.Constraint("Tangent", 28, 2, 29, 2),
    Sketcher.Constraint("Tangent", 29, 1, 26, 1),
    Sketcher.Constraint("Horizontal", 2),
    Sketcher.Constraint("Horizontal", 4),
    Sketcher.Constraint("Horizontal", 6),
    Sketcher.Constraint("Horizontal", 8),
    Sketcher.Constraint("Horizontal", 10),
    Sketcher.Constraint("Horizontal", 12),
    Sketcher.Constraint("Horizontal", 14),
    Sketcher.Constraint("Horizontal", 16),
    Sketcher.Constraint("Horizontal", 18),
    Sketcher.Constraint("Horizontal", 20),
    Sketcher.Constraint("Horizontal", 22),
    Sketcher.Constraint("Horizontal", 24),
    Sketcher.Constraint("Horizontal", 26),
    Sketcher.Constraint("Horizontal", 28),
    Sketcher.Constraint("Equal", 0, 1),
    Sketcher.Constraint("Equal", 5, 7),
    Sketcher.Constraint("Equal", 9, 11),
    Sketcher.Constraint("Equal", 13, 15),
    Sketcher.Constraint("Equal", 17, 19),
    Sketcher.Constraint("Equal", 21, 23),
    Sketcher.Constraint("Equal", 25, 27),
    Sketcher.Constraint("Horizontal", 0, 3, 1, 3),
    Sketcher.Constraint("Vertical", 3, 3, 7, 3),
    Sketcher.Constraint("Vertical", 5, 3, 9, 3),
    Sketcher.Constraint("Vertical", 7, 3, 11, 3),
    Sketcher.Constraint("Vertical", 9, 3, 13, 3),
    Sketcher.Constraint("Vertical", 11, 3, 15, 3),
    Sketcher.Constraint("Vertical", 13, 3, 17, 3),
    Sketcher.Constraint("Vertical", 15, 3, 19, 3),
    Sketcher.Constraint("Vertical", 17, 3, 21, 3),
    Sketcher.Constraint("Vertical", 19, 3, 23, 3),
    Sketcher.Constraint("Vertical", 21, 3, 25, 3),
    Sketcher.Constraint("Vertical", 23, 3, 27, 3),
    Sketcher.Constraint("Vertical", 25, 3, 29, 3),
    Sketcher.Constraint("Diameter", 0, 15.0),
    Sketcher.Constraint("Radius", 3, 3.0),
    Sketcher.Constraint("DistanceX", 2, 2, 2, 1, 27.0),
    Sketcher.Constraint("DistanceY", -1, 1, 0, 3, 17.0),
    Sketcher.Constraint("DistanceY", -1, 1, 3, 3, 35.0),
    Sketcher.Constraint("DistanceY", -1, 1, 7, 3, 45.0),
    Sketcher.Constraint("DistanceY", -1, 1, 11, 3, 55.0),
    Sketcher.Constraint("DistanceY", -1, 1, 15, 3, 65.0),
    Sketcher.Constraint("DistanceY", -1, 1, 19, 3, 75.0),
    Sketcher.Constraint("DistanceY", -1, 1, 23, 3, 85.0),
    Sketcher.Constraint("DistanceY", -1, 1, 27, 3, 95.0),
    Sketcher.Constraint("DistanceX", 0, 3, 1, 3, 33.0),
    Sketcher.Constraint("DistanceX", 0, 3, 3, 3, 3.0),
    Sketcher.Constraint("DistanceX", 0, 3, -1, 1, 31.859),
])
pocket6 = body.newObject("PartDesign::Pocket", "Pocket005")
pocket6.Profile = sketch8
pocket6.Length = 10
pocket6.Reversed = True

doc.recompute()
